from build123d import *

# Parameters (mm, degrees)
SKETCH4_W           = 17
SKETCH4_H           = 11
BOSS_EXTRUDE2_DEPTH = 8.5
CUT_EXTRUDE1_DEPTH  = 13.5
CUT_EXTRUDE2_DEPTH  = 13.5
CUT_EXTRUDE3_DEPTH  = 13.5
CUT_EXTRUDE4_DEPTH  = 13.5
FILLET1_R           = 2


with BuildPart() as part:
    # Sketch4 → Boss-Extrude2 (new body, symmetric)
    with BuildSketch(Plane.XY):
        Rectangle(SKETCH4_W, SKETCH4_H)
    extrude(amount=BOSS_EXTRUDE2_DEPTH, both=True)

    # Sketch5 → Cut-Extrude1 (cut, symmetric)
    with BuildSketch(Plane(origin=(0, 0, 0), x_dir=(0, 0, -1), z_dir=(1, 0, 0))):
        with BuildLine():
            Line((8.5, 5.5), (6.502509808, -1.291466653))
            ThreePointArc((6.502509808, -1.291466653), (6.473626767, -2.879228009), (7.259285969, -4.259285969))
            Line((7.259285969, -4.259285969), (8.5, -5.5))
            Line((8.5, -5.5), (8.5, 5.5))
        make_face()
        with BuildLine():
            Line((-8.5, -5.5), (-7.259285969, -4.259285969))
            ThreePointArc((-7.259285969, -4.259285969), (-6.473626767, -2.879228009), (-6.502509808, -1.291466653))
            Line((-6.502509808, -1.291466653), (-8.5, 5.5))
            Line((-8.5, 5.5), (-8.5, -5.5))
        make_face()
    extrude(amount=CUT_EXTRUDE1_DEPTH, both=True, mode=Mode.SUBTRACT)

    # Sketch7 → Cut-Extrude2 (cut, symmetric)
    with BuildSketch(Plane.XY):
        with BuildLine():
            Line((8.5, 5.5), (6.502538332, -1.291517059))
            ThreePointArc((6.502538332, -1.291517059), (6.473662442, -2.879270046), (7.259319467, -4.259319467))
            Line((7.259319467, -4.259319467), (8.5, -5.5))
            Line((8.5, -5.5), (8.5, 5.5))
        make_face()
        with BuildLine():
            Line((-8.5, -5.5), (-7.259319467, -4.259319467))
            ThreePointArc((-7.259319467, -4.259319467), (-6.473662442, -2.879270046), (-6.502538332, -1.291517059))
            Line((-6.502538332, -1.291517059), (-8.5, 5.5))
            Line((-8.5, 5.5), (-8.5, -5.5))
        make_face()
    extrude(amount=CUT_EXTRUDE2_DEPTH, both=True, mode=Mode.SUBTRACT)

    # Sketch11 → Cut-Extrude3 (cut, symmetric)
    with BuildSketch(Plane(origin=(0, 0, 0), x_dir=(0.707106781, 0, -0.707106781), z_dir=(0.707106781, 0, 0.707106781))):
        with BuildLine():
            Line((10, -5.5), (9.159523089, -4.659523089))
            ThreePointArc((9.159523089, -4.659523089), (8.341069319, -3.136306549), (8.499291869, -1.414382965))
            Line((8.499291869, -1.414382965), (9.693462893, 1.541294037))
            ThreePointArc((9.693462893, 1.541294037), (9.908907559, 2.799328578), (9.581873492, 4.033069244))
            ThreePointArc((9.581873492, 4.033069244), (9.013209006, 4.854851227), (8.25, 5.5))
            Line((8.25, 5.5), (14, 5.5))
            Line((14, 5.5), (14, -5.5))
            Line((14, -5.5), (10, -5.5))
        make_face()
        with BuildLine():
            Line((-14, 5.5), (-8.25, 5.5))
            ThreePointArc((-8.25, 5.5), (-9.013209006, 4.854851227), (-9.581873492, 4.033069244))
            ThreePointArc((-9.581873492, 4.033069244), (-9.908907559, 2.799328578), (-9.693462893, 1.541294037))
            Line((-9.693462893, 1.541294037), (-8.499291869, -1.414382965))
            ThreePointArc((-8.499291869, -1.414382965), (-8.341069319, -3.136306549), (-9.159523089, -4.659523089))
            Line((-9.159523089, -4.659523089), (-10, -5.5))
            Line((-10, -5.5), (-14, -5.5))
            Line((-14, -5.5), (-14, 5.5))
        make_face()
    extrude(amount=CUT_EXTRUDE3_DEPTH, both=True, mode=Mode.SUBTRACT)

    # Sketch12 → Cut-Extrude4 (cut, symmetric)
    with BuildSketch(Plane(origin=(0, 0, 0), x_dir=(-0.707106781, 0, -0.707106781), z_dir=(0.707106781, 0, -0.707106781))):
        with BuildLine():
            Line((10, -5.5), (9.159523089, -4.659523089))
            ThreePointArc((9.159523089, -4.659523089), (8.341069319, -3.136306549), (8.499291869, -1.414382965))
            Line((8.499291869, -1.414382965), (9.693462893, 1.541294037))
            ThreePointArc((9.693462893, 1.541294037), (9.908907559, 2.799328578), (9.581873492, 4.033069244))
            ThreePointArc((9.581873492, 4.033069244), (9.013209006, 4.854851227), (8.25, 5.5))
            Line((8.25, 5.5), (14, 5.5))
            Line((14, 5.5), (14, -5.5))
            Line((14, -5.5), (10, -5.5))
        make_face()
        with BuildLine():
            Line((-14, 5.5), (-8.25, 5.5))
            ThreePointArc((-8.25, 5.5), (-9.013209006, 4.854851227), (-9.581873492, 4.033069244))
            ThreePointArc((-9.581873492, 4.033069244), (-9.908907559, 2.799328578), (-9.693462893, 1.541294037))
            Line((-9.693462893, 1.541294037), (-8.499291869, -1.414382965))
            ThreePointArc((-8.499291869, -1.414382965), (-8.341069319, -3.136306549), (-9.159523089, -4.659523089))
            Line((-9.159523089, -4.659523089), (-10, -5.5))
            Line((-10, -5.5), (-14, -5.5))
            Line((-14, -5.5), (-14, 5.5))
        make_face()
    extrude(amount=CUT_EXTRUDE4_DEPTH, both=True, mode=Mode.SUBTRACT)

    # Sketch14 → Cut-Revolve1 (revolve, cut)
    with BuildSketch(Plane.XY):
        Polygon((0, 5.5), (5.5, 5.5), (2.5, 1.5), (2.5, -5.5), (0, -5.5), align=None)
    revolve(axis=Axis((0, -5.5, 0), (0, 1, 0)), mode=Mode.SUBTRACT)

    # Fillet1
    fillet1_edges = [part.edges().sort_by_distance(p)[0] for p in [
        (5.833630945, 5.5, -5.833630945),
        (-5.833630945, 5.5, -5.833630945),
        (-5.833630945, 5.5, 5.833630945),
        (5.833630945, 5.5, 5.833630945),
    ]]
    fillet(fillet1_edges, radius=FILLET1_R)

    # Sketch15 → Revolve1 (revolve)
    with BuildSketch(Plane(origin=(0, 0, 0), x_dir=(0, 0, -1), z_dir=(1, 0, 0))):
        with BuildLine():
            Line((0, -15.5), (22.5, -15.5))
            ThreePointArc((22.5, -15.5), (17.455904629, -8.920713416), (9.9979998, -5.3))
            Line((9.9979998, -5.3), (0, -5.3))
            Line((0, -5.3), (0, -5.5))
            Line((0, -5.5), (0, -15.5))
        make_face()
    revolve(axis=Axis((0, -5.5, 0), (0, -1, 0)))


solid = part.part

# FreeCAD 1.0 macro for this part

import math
import FreeCAD as App
import Part
import Sketcher
from FreeCAD import Vector
Q = App.Units.Quantity


def edges_at(feature, points):
    """Names of the edges that pass closest to the given points."""
    edges = feature.Shape.Edges
    near = lambda p: min(range(len(edges)), key=lambda i: edges[i].distToShape(Part.Vertex(*p))[0])
    return sorted({f"Edge{near(p) + 1}" for p in points})

doc = App.newDocument("Part")
body = doc.addObject("PartDesign::Body", "Body")

# Sketch on XY plane
sketch1 = body.newObject("Sketcher::SketchObject", "Sketch")
sketch1.AttachmentSupport = (doc.getObject("XY_Plane"), [""])
sketch1.MapMode = "FlatFace"
sketch1.addGeometry([
    Part.LineSegment(Vector(-8, 6, 0), Vector(-8, -6, 0)),
    Part.LineSegment(Vector(-8, -6, 0), Vector(8, -6, 0)),
    Part.LineSegment(Vector(8, -6, 0), Vector(8, 6, 0)),
    Part.LineSegment(Vector(8, 6, 0), Vector(-8, 6, 0)),
], False)
sketch1.addConstraint([
    Sketcher.Constraint("Coincident", 0, 2, 1, 1),
    Sketcher.Constraint("Coincident", 1, 2, 2, 1),
    Sketcher.Constraint("Coincident", 2, 2, 3, 1),
    Sketcher.Constraint("Coincident", 3, 2, 0, 1),
    Sketcher.Constraint("Vertical", 0),
    Sketcher.Constraint("Horizontal", 1),
    Sketcher.Constraint("Vertical", 2),
    Sketcher.Constraint("Horizontal", 3),
    Sketcher.Constraint("Symmetric", 0, 2, 2, 2, -1, 1),
    Sketcher.Constraint("DistanceX", 1, 1, 1, 2, 17.0),
    Sketcher.Constraint("DistanceY", 0, 2, 0, 1, 11.0),
])
pad1 = body.newObject("PartDesign::Pad", "Pad")
pad1.Profile = sketch1
pad1.Length = 17
pad1.Midplane = True

# Sketch on YZ plane
sketch2 = body.newObject("Sketcher::SketchObject", "Sketch001")
sketch2.AttachmentSupport = (doc.getObject("YZ_Plane"), [""])
sketch2.MapMode = "FlatFace"
sketch2.addGeometry([
    Part.LineSegment(Vector(5.5, -8.5, 0), Vector(-1.3, -6.5, 0)),  # 0
    Part.ArcOfCircle(Part.Circle(Vector(-2.1, -9.4, 0), Vector(0, 0, 1), 3), math.radians(74), math.radians(135)),  # 1
    Part.LineSegment(Vector(-4.3, -7.3, 0), Vector(-5.5, -8.5, 0)),  # 2
    Part.LineSegment(Vector(-5.5, -8.5, 0), Vector(5.5, -8.5, 0)),  # 3
    Part.LineSegment(Vector(-5.5, 8.5, 0), Vector(-4.3, 7.3, 0)),  # 4
    Part.ArcOfCircle(Part.Circle(Vector(-2.1, 9.4, 0), Vector(0, 0, 1), 3), math.radians(-135), math.radians(-74)),  # 5
    Part.LineSegment(Vector(-1.3, 6.5, 0), Vector(5.5, 8.5, 0)),  # 6
    Part.LineSegment(Vector(5.5, 8.5, 0), Vector(-5.5, 8.5, 0)),  # 7
], False)
sketch2.addConstraint([
    Sketcher.Constraint("Tangent", 0, 2, 1, 1),
    Sketcher.Constraint("Tangent", 1, 2, 2, 1),
    Sketcher.Constraint("Coincident", 2, 2, 3, 1),
    Sketcher.Constraint("Coincident", 3, 2, 0, 1),
    Sketcher.Constraint("Tangent", 4, 2, 5, 1),
    Sketcher.Constraint("Tangent", 5, 2, 6, 1),
    Sketcher.Constraint("Coincident", 6, 2, 7, 1),
    Sketcher.Constraint("Coincident", 7, 2, 4, 1),
    Sketcher.Constraint("Horizontal", 3),
    Sketcher.Constraint("Horizontal", 7),
    Sketcher.Constraint("Equal", 1, 5),
    Sketcher.Constraint("Symmetric", 2, 2, 6, 2, -1, 1),
    Sketcher.Constraint("Symmetric", 1, 3, 5, 3, -1),
    Sketcher.Constraint("Perpendicular", 2, 4),
    Sketcher.Constraint("Vertical", 1, 2, 4, 2),
    Sketcher.Constraint("Vertical", 0, 2, 5, 2),
    Sketcher.Constraint("Radius", 1, 3.0),
    Sketcher.Constraint("DistanceX", 3, 1, 3, 2, 11.0),
    Sketcher.Constraint("DistanceY", 3, 2, 6, 2, 17.0),
    Sketcher.Constraint("DistanceX", 1, 3, 0, 2, 0.846499),
])
pocket1 = body.newObject("PartDesign::Pocket", "Pocket")
pocket1.Profile = sketch2
pocket1.Length = 27
pocket1.Midplane = True

# Sketch on XY plane
sketch3 = body.newObject("Sketcher::SketchObject", "Sketch002")
sketch3.AttachmentSupport = (doc.getObject("XY_Plane"), [""])
sketch3.MapMode = "FlatFace"
sketch3.addGeometry([
    Part.LineSegment(Vector(8.5, 5.5, 0), Vector(6.5, -1.3, 0)),  # 0
    Part.ArcOfCircle(Part.Circle(Vector(9.4, -2.1, 0), Vector(0, 0, 1), 3), math.radians(164), math.radians(225)),  # 1
    Part.LineSegment(Vector(7.3, -4.3, 0), Vector(8.5, -5.5, 0)),  # 2
    Part.LineSegment(Vector(8.5, -5.5, 0), Vector(8.5, 5.5, 0)),  # 3
    Part.LineSegment(Vector(-8.5, -5.5, 0), Vector(-7.3, -4.3, 0)),  # 4
    Part.ArcOfCircle(Part.Circle(Vector(-9.4, -2.1, 0), Vector(0, 0, 1), 3), math.radians(-45), math.radians(16)),  # 5
    Part.LineSegment(Vector(-6.5, -1.3, 0), Vector(-8.5, 5.5, 0)),  # 6
    Part.LineSegment(Vector(-8.5, 5.5, 0), Vector(-8.5, -5.5, 0)),  # 7
], False)
sketch3.addConstraint([
    Sketcher.Constraint("Tangent", 0, 2, 1, 1),
    Sketcher.Constraint("Tangent", 1, 2, 2, 1),
    Sketcher.Constraint("Coincident", 2, 2, 3, 1),
    Sketcher.Constraint("Coincident", 3, 2, 0, 1),
    Sketcher.Constraint("Tangent", 4, 2, 5, 1),
    Sketcher.Constraint("Tangent", 5, 2, 6, 1),
    Sketcher.Constraint("Coincident", 6, 2, 7, 1),
    Sketcher.Constraint("Coincident", 7, 2, 4, 1),
    Sketcher.Constraint("Vertical", 3),
    Sketcher.Constraint("Vertical", 7),
    Sketcher.Constraint("Equal", 1, 5),
    Sketcher.Constraint("Symmetric", 2, 2, 6, 2, -1, 1),
    Sketcher.Constraint("Symmetric", 1, 3, 5, 3, -2),
    Sketcher.Constraint("Perpendicular", 2, 4),
    Sketcher.Constraint("Horizontal", 1, 2, 4, 2),
    Sketcher.Constraint("Horizontal", 0, 2, 5, 2),
    Sketcher.Constraint("Radius", 1, 3.0),
    Sketcher.Constraint("DistanceY", 3, 1, 3, 2, 11.0),
    Sketcher.Constraint("DistanceX", 6, 2, 3, 2, 17.0),
    Sketcher.Constraint("DistanceY", 1, 3, -1, 1, 2.137999),
])
pocket2 = body.newObject("PartDesign::Pocket", "Pocket001")
pocket2.Profile = sketch3
pocket2.Length = 27
pocket2.Midplane = True

# Sketch on an angled plane
sketch4 = body.newObject("Sketcher::SketchObject", "Sketch003")
sketch4.Placement = App.Placement(Vector(0, 0, 0), App.Rotation(Vector(0.707106781, 0, -0.707106781), Vector(0, 0.999999999, 0), Vector(0.707106781, 0, 0.707106781), "ZXY"))
sketch4.addGeometry([
    Part.LineSegment(Vector(9.2, -4.7, 0), Vector(10, -5.5, 0)),  # 0
    Part.LineSegment(Vector(10, -5.5, 0), Vector(14, -5.5, 0)),  # 1
    Part.LineSegment(Vector(14, -5.5, 0), Vector(14, 5.5, 0)),  # 2
    Part.LineSegment(Vector(14, 5.5, 0), Vector(8.2, 5.5, 0)),  # 3
    Part.ArcOfCircle(Part.Circle(Vector(6.2, 2.3, 0), Vector(0, 0, 1), 3.8), math.radians(27), math.radians(57)),  # 4
    Part.ArcOfCircle(Part.Circle(Vector(6.9, 2.7, 0), Vector(0, 0, 1), 3), math.radians(-22), math.radians(27)),  # 5
    Part.LineSegment(Vector(9.7, 1.5, 0), Vector(8.5, -1.4, 0)),  # 6
    Part.ArcOfCircle(Part.Circle(Vector(11.3, -2.5, 0), Vector(0, 0, 1), 3), math.radians(158), math.radians(225)),  # 7
    Part.LineSegment(Vector(-8.2, 5.5, 0), Vector(-14, 5.5, 0)),  # 8
    Part.LineSegment(Vector(-14, 5.5, 0), Vector(-14, -5.5, 0)),  # 9
    Part.LineSegment(Vector(-14, -5.5, 0), Vector(-10, -5.5, 0)),  # 10
    Part.LineSegment(Vector(-10, -5.5, 0), Vector(-9.2, -4.7, 0)),  # 11
    Part.ArcOfCircle(Part.Circle(Vector(-11.3, -2.5, 0), Vector(0, 0, 1), 3), math.radians(-45), math.radians(22)),  # 12
    Part.LineSegment(Vector(-8.5, -1.4, 0), Vector(-9.7, 1.5, 0)),  # 13
    Part.ArcOfCircle(Part.Circle(Vector(-6.9, 2.7, 0), Vector(0, 0, 1), 3), math.radians(153), math.radians(202)),  # 14
    Part.ArcOfCircle(Part.Circle(Vector(-6.2, 2.3, 0), Vector(0, 0, 1), 3.8), math.radians(123), math.radians(153)),  # 15
], False)
sketch4.addConstraint([
    Sketcher.Constraint("Coincident", 0, 2, 1, 1),
    Sketcher.Constraint("Coincident", 1, 2, 2, 1),
    Sketcher.Constraint("Coincident", 2, 2, 3, 1),
    Sketcher.Constraint("Coincident", 3, 2, 4, 2),
    Sketcher.Constraint("Tangent", 4, 1, 5, 2),
    Sketcher.Constraint("Tangent", 5, 1, 6, 1),
    Sketcher.Constraint("Tangent", 6, 2, 7, 1),
    Sketcher.Constraint("Tangent", 7, 2, 0, 1),
    Sketcher.Constraint("Coincident", 8, 2, 9, 1),
    Sketcher.Constraint("Coincident", 9, 2, 10, 1),
    Sketcher.Constraint("Coincident", 10, 2, 11, 1),
    Sketcher.Constraint("Tangent", 11, 2, 12, 1),
    Sketcher.Constraint("Tangent", 12, 2, 13, 1),
    Sketcher.Constraint("Tangent", 13, 2, 14, 2),
    Sketcher.Constraint("Tangent", 14, 1, 15, 2),
    Sketcher.Constraint("Coincident", 15, 1, 8, 1),
    Sketcher.Constraint("Horizontal", 1),
    Sketcher.Constraint("Vertical", 2),
    Sketcher.Constraint("Horizontal", 3),
    Sketcher.Constraint("Horizontal", 8),
    Sketcher.Constraint("Vertical", 9),
    Sketcher.Constraint("Horizontal", 10),
    Sketcher.Constraint("Equal", 5, 7),
    Sketcher.Constraint("Equal", 7, 12),
    Sketcher.Constraint("Equal", 12, 14),
    Sketcher.Constraint("Equal", 4, 15),
    Sketcher.Constraint("Symmetric", 1, 2, 8, 2, -1, 1),
    Sketcher.Constraint("Symmetric", 7, 3, 12, 3, -2),
    Sketcher.Constraint("Symmetric", 5, 3, 14, 3, -2),
    Sketcher.Constraint("Symmetric", 0, 2, 10, 2, -2),
    Sketcher.Constraint("Symmetric", 3, 2, 15, 1, -2),
    Sketcher.Constraint("Perpendicular", 0, 11),
    Sketcher.Constraint("Radius", 5, 3.0),
    Sketcher.Constraint("DistanceX", 1, 1, 1, 2, 4.0),
    Sketcher.Constraint("DistanceY", 2, 1, 2, 2, 11.0),
    Sketcher.Constraint("Angle", 6, Q("-112 deg")),
    Sketcher.Constraint("DistanceX", -1, 1, 0, 2, 10.0),
    Sketcher.Constraint("DistanceX", 3, 2, 3, 1, 5.75),
    Sketcher.Constraint("DistanceY", -1, 1, 4, 3, 2.3),
    Sketcher.Constraint("Radius", 4, 3.800714),
    Sketcher.Constraint("Distance", 6, 3.1878),
])
pocket3 = body.newObject("PartDesign::Pocket", "Pocket002")
pocket3.Profile = sketch4
pocket3.Length = 27
pocket3.Midplane = True

# Sketch on an angled plane
sketch5 = body.newObject("Sketcher::SketchObject", "Sketch004")
sketch5.Placement = App.Placement(Vector(0, 0, 0), App.Rotation(Vector(-0.707106781, 0, -0.707106781), Vector(0, 0.999999999, 0), Vector(0.707106781, 0, -0.707106781), "ZXY"))
sketch5.addGeometry([
    Part.LineSegment(Vector(9.2, -4.7, 0), Vector(10, -5.5, 0)),  # 0
    Part.LineSegment(Vector(10, -5.5, 0), Vector(14, -5.5, 0)),  # 1
    Part.LineSegment(Vector(14, -5.5, 0), Vector(14, 5.5, 0)),  # 2
    Part.LineSegment(Vector(14, 5.5, 0), Vector(8.2, 5.5, 0)),  # 3
    Part.ArcOfCircle(Part.Circle(Vector(6.2, 2.3, 0), Vector(0, 0, 1), 3.8), math.radians(27), math.radians(57)),  # 4
    Part.ArcOfCircle(Part.Circle(Vector(6.9, 2.7, 0), Vector(0, 0, 1), 3), math.radians(-22), math.radians(27)),  # 5
    Part.LineSegment(Vector(9.7, 1.5, 0), Vector(8.5, -1.4, 0)),  # 6
    Part.ArcOfCircle(Part.Circle(Vector(11.3, -2.5, 0), Vector(0, 0, 1), 3), math.radians(158), math.radians(225)),  # 7
    Part.LineSegment(Vector(-8.2, 5.5, 0), Vector(-14, 5.5, 0)),  # 8
    Part.LineSegment(Vector(-14, 5.5, 0), Vector(-14, -5.5, 0)),  # 9
    Part.LineSegment(Vector(-14, -5.5, 0), Vector(-10, -5.5, 0)),  # 10
    Part.LineSegment(Vector(-10, -5.5, 0), Vector(-9.2, -4.7, 0)),  # 11
    Part.ArcOfCircle(Part.Circle(Vector(-11.3, -2.5, 0), Vector(0, 0, 1), 3), math.radians(-45), math.radians(22)),  # 12
    Part.LineSegment(Vector(-8.5, -1.4, 0), Vector(-9.7, 1.5, 0)),  # 13
    Part.ArcOfCircle(Part.Circle(Vector(-6.9, 2.7, 0), Vector(0, 0, 1), 3), math.radians(153), math.radians(202)),  # 14
    Part.ArcOfCircle(Part.Circle(Vector(-6.2, 2.3, 0), Vector(0, 0, 1), 3.8), math.radians(123), math.radians(153)),  # 15
], False)
sketch5.addConstraint([
    Sketcher.Constraint("Coincident", 0, 2, 1, 1),
    Sketcher.Constraint("Coincident", 1, 2, 2, 1),
    Sketcher.Constraint("Coincident", 2, 2, 3, 1),
    Sketcher.Constraint("Coincident", 3, 2, 4, 2),
    Sketcher.Constraint("Tangent", 4, 1, 5, 2),
    Sketcher.Constraint("Tangent", 5, 1, 6, 1),
    Sketcher.Constraint("Tangent", 6, 2, 7, 1),
    Sketcher.Constraint("Tangent", 7, 2, 0, 1),
    Sketcher.Constraint("Coincident", 8, 2, 9, 1),
    Sketcher.Constraint("Coincident", 9, 2, 10, 1),
    Sketcher.Constraint("Coincident", 10, 2, 11, 1),
    Sketcher.Constraint("Tangent", 11, 2, 12, 1),
    Sketcher.Constraint("Tangent", 12, 2, 13, 1),
    Sketcher.Constraint("Tangent", 13, 2, 14, 2),
    Sketcher.Constraint("Tangent", 14, 1, 15, 2),
    Sketcher.Constraint("Coincident", 15, 1, 8, 1),
    Sketcher.Constraint("Horizontal", 1),
    Sketcher.Constraint("Vertical", 2),
    Sketcher.Constraint("Horizontal", 3),
    Sketcher.Constraint("Horizontal", 8),
    Sketcher.Constraint("Vertical", 9),
    Sketcher.Constraint("Horizontal", 10),
    Sketcher.Constraint("Equal", 5, 7),
    Sketcher.Constraint("Equal", 7, 12),
    Sketcher.Constraint("Equal", 12, 14),
    Sketcher.Constraint("Equal", 4, 15),
    Sketcher.Constraint("Symmetric", 1, 2, 8, 2, -1, 1),
    Sketcher.Constraint("Symmetric", 7, 3, 12, 3, -2),
    Sketcher.Constraint("Symmetric", 5, 3, 14, 3, -2),
    Sketcher.Constraint("Symmetric", 0, 2, 10, 2, -2),
    Sketcher.Constraint("Symmetric", 3, 2, 15, 1, -2),
    Sketcher.Constraint("Perpendicular", 0, 11),
    Sketcher.Constraint("Radius", 5, 3.0),
    Sketcher.Constraint("DistanceX", 1, 1, 1, 2, 4.0),
    Sketcher.Constraint("DistanceY", 2, 1, 2, 2, 11.0),
    Sketcher.Constraint("Angle", 6, Q("-112 deg")),
    Sketcher.Constraint("DistanceX", -1, 1, 0, 2, 10.0),
    Sketcher.Constraint("DistanceX", 3, 2, 3, 1, 5.75),
    Sketcher.Constraint("DistanceY", -1, 1, 4, 3, 2.3),
    Sketcher.Constraint("Radius", 4, 3.800714),
    Sketcher.Constraint("Distance", 6, 3.1878),
])
pocket4 = body.newObject("PartDesign::Pocket", "Pocket003")
pocket4.Profile = sketch5
pocket4.Length = 27
pocket4.Midplane = True

# Sketch on XY plane
sketch6 = body.newObject("Sketcher::SketchObject", "Sketch005")
sketch6.AttachmentSupport = (doc.getObject("XY_Plane"), [""])
sketch6.MapMode = "FlatFace"
sketch6.addGeometry([
    Part.LineSegment(Vector(5.5, 5.5, 0), Vector(0, 5.5, 0)),  # 0
    Part.LineSegment(Vector(0, 5.5, 0), Vector(0, -5.5, 0)),  # 1
    Part.LineSegment(Vector(0, -5.5, 0), Vector(2.5, -5.5, 0)),  # 2
    Part.LineSegment(Vector(2.5, -5.5, 0), Vector(2.5, 1.5, 0)),  # 3
    Part.LineSegment(Vector(2.5, 1.5, 0), Vector(5.5, 5.5, 0)),  # 4
], False)
sketch6.addConstraint([
    Sketcher.Constraint("Coincident", 0, 2, 1, 1),
    Sketcher.Constraint("Coincident", 1, 2, 2, 1),
    Sketcher.Constraint("Coincident", 2, 2, 3, 1),
    Sketcher.Constraint("Coincident", 3, 2, 4, 1),
    Sketcher.Constraint("Coincident", 4, 2, 0, 1),
    Sketcher.Constraint("Horizontal", 0),
    Sketcher.Constraint("Vertical", 1),
    Sketcher.Constraint("Horizontal", 2),
    Sketcher.Constraint("Vertical", 3),
    Sketcher.Constraint("Symmetric", 0, 2, 1, 2, -1, 1),
    Sketcher.Constraint("DistanceY", 1, 2, 1, 1, 11.0),
    Sketcher.Constraint("DistanceY", 3, 1, 3, 2, 7.0),
    Sketcher.Constraint("Distance", 4, 5.0),
    Sketcher.Constraint("DistanceX", 0, 2, 0, 1, 5.5),
])
groove = body.newObject("PartDesign::Groove", "Groove")
groove.Profile = sketch6
groove.ReferenceAxis = (sketch6, ["V_Axis"])
groove.Angle = 360
doc.recompute()

fillet = body.newObject("PartDesign::Fillet", "Fillet")
fillet.Base = (groove, edges_at(groove, [
    (5.834, 5.5, -5.834),
    (-5.834, 5.5, -5.834),
    (-5.834, 5.5, 5.834),
    (5.834, 5.5, 5.834),
]))
fillet.Radius = 2

# Sketch on YZ plane
sketch7 = body.newObject("Sketcher::SketchObject", "Sketch006")
sketch7.AttachmentSupport = (doc.getObject("YZ_Plane"), [""])
sketch7.MapMode = "FlatFace"
sketch7.addGeometry([
    Part.LineSegment(Vector(-16, 0, 0), Vector(-16, -22, 0)),
    Part.ArcOfCircle(Part.Circle(Vector(-23, -6, 0), Vector(0, 0, 1), 18), math.radians(-66), math.radians(-13)),
    Part.LineSegment(Vector(-5, -10, 0), Vector(-5, 0, 0)),
    Part.LineSegment(Vector(-5, 0, 0), Vector(-16, 0, 0)),
], False)
sketch7.addConstraint([
    Sketcher.Constraint("Coincident", 0, 2, 1, 1),
    Sketcher.Constraint("Coincident", 1, 2, 2, 1),
    Sketcher.Constraint("Coincident", 2, 2, 3, 1),
    Sketcher.Constraint("Coincident", 3, 2, 0, 1),
    Sketcher.Constraint("Vertical", 0),
    Sketcher.Constraint("Vertical", 2),
    Sketcher.Constraint("Horizontal", 3),
    Sketcher.Constraint("PointOnObject", 2, 2, -1),
    Sketcher.Constraint("Radius", 1, 18.0),
    Sketcher.Constraint("DistanceX", 3, 2, 3, 1, 10.2),
    Sketcher.Constraint("DistanceY", 0, 2, 0, 1, 22.5),
    Sketcher.Constraint("DistanceX", 0, 2, -1, 1, 15.5),
    Sketcher.Constraint("DistanceY", 2, 1, 2, 2, 9.998),
])
revolution = body.newObject("PartDesign::Revolution", "Revolution")
revolution.Profile = sketch7
revolution.ReferenceAxis = (sketch7, ["H_Axis"])
revolution.Angle = 360

doc.recompute()
